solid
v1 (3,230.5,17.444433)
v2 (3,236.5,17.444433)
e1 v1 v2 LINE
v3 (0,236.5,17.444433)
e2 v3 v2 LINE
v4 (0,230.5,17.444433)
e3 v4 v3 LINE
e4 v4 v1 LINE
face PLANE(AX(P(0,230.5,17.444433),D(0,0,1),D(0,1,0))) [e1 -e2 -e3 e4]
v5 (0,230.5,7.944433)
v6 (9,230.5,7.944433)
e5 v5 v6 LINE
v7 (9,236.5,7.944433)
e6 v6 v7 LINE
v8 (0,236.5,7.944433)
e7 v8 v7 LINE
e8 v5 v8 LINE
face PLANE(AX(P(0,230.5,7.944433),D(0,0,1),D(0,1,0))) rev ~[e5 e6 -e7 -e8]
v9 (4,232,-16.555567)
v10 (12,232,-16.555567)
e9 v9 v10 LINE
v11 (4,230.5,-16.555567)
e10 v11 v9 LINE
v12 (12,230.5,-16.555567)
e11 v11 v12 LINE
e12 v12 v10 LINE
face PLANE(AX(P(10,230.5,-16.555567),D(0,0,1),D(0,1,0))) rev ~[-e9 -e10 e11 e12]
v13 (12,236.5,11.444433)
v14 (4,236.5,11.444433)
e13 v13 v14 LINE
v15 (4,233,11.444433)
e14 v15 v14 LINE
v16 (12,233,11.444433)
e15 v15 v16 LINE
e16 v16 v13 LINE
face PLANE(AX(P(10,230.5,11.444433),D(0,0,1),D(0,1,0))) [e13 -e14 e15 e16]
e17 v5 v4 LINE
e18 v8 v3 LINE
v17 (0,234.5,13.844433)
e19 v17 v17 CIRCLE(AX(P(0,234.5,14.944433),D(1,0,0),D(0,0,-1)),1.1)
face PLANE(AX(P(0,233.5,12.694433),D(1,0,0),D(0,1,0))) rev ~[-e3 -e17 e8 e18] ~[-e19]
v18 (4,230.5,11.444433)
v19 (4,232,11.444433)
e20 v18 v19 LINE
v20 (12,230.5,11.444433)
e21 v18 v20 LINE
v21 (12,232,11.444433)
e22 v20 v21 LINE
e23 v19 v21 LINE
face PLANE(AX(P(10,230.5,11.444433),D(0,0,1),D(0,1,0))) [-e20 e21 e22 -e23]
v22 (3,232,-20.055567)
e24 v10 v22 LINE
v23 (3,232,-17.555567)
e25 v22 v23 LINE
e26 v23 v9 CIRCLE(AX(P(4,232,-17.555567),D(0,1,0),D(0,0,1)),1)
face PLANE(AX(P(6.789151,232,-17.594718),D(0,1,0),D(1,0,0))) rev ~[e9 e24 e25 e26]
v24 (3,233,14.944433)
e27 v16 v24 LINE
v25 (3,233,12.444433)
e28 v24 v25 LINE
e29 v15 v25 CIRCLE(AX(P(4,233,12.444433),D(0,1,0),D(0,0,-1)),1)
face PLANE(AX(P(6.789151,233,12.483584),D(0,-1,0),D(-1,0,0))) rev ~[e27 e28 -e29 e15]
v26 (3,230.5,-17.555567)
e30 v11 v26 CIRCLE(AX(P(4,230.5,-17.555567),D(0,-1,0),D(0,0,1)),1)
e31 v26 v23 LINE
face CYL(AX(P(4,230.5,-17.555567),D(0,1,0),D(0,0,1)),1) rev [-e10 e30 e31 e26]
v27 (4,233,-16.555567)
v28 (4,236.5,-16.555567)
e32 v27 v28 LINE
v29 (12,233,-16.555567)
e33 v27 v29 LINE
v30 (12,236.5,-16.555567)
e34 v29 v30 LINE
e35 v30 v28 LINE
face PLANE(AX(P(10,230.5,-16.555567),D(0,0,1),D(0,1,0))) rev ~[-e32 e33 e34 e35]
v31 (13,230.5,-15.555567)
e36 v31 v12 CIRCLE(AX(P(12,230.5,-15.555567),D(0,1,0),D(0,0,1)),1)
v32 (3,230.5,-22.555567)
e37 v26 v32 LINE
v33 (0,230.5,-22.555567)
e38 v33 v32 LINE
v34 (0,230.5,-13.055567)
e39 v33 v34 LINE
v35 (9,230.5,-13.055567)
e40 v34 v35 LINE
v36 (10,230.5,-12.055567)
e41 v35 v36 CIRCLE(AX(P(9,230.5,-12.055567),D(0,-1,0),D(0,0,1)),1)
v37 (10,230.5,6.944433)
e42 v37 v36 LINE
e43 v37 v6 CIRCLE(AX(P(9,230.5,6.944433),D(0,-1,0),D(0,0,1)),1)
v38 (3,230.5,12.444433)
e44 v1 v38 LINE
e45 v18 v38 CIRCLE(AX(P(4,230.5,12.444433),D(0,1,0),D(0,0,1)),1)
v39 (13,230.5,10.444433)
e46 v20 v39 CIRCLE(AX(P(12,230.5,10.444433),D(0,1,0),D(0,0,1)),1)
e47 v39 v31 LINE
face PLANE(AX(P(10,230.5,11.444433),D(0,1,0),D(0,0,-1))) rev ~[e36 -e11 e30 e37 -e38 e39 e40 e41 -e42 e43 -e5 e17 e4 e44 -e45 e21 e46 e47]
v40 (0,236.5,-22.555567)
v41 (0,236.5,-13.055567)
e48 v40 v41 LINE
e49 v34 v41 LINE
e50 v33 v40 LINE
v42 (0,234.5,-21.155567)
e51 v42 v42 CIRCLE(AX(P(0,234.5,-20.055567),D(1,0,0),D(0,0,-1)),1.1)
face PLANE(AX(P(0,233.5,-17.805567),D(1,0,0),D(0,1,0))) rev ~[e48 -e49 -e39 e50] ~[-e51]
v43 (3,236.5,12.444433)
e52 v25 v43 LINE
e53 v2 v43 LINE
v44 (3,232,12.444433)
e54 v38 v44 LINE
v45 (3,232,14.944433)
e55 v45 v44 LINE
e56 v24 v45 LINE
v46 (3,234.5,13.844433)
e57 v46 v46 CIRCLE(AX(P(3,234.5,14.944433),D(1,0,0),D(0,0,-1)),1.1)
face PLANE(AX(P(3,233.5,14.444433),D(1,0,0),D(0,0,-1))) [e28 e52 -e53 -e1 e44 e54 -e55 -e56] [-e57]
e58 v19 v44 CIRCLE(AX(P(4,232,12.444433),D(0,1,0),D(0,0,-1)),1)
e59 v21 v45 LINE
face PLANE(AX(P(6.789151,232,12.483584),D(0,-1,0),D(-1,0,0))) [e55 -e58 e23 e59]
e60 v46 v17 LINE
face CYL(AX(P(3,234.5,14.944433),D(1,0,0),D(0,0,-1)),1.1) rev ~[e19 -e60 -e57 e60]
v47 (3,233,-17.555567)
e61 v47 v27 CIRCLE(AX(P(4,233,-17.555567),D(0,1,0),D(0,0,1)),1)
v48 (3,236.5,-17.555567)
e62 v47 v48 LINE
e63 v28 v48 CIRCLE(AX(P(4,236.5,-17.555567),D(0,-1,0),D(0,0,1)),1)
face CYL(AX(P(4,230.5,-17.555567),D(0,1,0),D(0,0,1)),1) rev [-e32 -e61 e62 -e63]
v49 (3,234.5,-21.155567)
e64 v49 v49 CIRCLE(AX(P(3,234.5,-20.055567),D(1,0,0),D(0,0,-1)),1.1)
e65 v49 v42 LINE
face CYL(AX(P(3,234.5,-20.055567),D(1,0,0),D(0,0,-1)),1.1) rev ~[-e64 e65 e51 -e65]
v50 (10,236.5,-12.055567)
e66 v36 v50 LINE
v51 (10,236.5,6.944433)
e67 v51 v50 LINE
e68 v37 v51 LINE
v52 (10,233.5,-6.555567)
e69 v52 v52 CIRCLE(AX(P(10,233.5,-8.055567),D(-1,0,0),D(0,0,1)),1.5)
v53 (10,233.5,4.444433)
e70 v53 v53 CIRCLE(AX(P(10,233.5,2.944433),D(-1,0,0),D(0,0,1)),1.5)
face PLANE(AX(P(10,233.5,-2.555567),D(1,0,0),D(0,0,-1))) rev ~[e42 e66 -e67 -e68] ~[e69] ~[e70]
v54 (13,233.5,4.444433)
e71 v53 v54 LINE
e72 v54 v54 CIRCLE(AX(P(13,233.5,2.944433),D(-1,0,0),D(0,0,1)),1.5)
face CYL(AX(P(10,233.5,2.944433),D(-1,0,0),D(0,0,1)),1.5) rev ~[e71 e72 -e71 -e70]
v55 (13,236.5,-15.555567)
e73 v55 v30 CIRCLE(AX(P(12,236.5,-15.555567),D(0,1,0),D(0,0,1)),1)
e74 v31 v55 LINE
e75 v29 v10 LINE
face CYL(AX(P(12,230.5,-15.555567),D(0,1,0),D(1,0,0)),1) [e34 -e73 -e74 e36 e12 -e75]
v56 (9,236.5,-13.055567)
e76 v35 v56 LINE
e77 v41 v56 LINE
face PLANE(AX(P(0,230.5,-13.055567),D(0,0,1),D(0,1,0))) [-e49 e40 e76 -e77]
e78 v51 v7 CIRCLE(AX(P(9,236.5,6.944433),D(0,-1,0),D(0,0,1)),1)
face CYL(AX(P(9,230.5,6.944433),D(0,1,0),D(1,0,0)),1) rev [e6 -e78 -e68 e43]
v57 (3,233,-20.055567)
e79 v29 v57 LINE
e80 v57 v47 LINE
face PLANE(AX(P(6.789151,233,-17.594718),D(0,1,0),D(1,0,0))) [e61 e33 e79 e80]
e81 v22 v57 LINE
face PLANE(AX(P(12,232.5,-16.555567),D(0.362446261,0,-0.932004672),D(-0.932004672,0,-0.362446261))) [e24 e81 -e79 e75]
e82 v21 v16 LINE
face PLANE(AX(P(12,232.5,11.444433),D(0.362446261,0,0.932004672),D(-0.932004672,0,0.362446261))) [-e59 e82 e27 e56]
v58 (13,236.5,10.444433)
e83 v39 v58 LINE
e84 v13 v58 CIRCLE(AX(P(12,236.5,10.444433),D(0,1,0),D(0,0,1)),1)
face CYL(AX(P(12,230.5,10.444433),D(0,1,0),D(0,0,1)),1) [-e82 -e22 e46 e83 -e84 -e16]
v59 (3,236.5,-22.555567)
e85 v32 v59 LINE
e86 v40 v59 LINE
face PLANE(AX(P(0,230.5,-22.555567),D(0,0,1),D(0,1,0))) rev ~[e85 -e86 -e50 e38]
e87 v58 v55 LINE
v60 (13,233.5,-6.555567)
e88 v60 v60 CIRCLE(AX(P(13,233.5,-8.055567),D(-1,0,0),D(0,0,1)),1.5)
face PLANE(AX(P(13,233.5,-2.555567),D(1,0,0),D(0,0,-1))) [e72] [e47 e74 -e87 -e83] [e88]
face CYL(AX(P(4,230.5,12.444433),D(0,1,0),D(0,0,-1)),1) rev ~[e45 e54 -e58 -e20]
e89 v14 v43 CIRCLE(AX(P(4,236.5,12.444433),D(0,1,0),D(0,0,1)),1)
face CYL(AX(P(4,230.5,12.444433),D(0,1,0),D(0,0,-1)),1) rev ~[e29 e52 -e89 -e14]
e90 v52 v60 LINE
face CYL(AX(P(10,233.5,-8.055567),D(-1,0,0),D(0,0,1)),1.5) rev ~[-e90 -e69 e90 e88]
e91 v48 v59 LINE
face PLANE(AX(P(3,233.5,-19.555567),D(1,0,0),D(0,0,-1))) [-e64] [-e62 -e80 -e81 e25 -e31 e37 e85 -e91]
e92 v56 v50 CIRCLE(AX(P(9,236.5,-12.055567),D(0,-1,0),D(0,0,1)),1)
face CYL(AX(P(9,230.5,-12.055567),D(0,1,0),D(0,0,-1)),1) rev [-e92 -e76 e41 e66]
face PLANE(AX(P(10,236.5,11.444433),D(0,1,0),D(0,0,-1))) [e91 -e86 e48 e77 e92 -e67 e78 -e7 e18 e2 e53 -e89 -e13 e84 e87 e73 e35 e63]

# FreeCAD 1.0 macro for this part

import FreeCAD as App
import Part
import Sketcher
from FreeCAD import Vector
Q = App.Units.Quantity


def edges_at(feature, points):
    """Names of the edges that pass closest to the given points."""
    edges = feature.Shape.Edges
    near = lambda p: min(range(len(edges)), key=lambda i: edges[i].distToShape(Part.Vertex(*p))[0])
    return sorted({f"Edge{near(p) + 1}" for p in points})

doc = App.newDocument("Part")
body = doc.addObject("PartDesign::Body", "Body")

# Sketch on YZ plane
sketch1 = body.newObject("Sketcher::SketchObject", "Sketch")
sketch1.AttachmentSupport = (doc.getObject("YZ_Plane"), [""])
sketch1.MapMode = "FlatFace"
sketch1.addGeometry([
    Part.LineSegment(Vector(230.5, -13.055567, 0), Vector(230.5, -22.555567, 0)),
    Part.LineSegment(Vector(230.5, -22.555567, 0), Vector(236.5, -22.555567, 0)),
    Part.LineSegment(Vector(236.5, -22.555567, 0), Vector(236.5, -13.055567, 0)),
    Part.LineSegment(Vector(236.5, -13.055567, 0), Vector(230.5, -13.055567, 0)),
], False)
sketch1.addConstraint([
    Sketcher.Constraint("Coincident", 0, 2, 1, 1),
    Sketcher.Constraint("Coincident", 1, 2, 2, 1),
    Sketcher.Constraint("Coincident", 2, 2, 3, 1),
    Sketcher.Constraint("Coincident", 3, 2, 0, 1),
    Sketcher.Constraint("Vertical", 0),
    Sketcher.Constraint("Horizontal", 1),
    Sketcher.Constraint("Vertical", 2),
    Sketcher.Constraint("Horizontal", 3),
    Sketcher.Constraint("DistanceX", 1, 1, 1, 2, Q("6 mm")),
    Sketcher.Constraint("DistanceY", 0, 2, 0, 1, Q("9.5 mm")),
    Sketcher.Constraint("DistanceX", -1, 1, 0, 2, Q("230.5 mm")),
    Sketcher.Constraint("DistanceY", 0, 2, -1, 1, Q("22.555567 mm")),
])
pad1 = body.newObject("PartDesign::Pad", "Pad")
pad1.Profile = sketch1
pad1.Length = 10
body2 = doc.addObject("PartDesign::Body", "Body001")

# Sketch on YZ plane
sketch2 = body2.newObject("Sketcher::SketchObject", "Sketch001")
sketch2.AttachmentSupport = (doc.getObject("YZ_Plane001"), [""])
sketch2.MapMode = "FlatFace"
sketch2.addGeometry([
    Part.LineSegment(Vector(230.5, 17.444433, 0), Vector(230.5, 7.944433, 0)),
    Part.LineSegment(Vector(230.5, 7.944433, 0), Vector(236.5, 7.944433, 0)),
    Part.LineSegment(Vector(236.5, 7.944433, 0), Vector(236.5, 17.444433, 0)),
    Part.LineSegment(Vector(236.5, 17.444433, 0), Vector(230.5, 17.444433, 0)),
], False)
sketch2.addConstraint([
    Sketcher.Constraint("Coincident", 0, 2, 1, 1),
    Sketcher.Constraint("Coincident", 1, 2, 2, 1),
    Sketcher.Constraint("Coincident", 2, 2, 3, 1),
    Sketcher.Constraint("Coincident", 3, 2, 0, 1),
    Sketcher.Constraint("Vertical", 0),
    Sketcher.Constraint("Horizontal", 1),
    Sketcher.Constraint("Vertical", 2),
    Sketcher.Constraint("Horizontal", 3),
    Sketcher.Constraint("DistanceX", 1, 1, 1, 2, Q("6 mm")),
    Sketcher.Constraint("DistanceY", 0, 2, 0, 1, Q("9.5 mm")),
    Sketcher.Constraint("DistanceX", -1, 1, 0, 2, Q("230.5 mm")),
    Sketcher.Constraint("DistanceY", -1, 1, 0, 2, Q("7.944433 mm")),
])
pad2 = body2.newObject("PartDesign::Pad", "Pad001")
pad2.Profile = sketch2
pad2.Length = 10
body3 = doc.addObject("PartDesign::Body", "Body002")
body3.AllowCompound = True

# Sketch on YZ plane
sketch3 = body3.newObject("Sketcher::SketchObject", "Sketch002")
sketch3.AttachmentSupport = (doc.getObject("YZ_Plane002"), [""])
sketch3.MapMode = "FlatFace"
sketch3.AttachmentOffset = App.Placement(Vector(0, 0, 10), App.Rotation())
sketch3.addGeometry([
    Part.LineSegment(Vector(236.5, 17.444433, 0), Vector(230.5, 17.444433, 0)),  # 0
    Part.LineSegment(Vector(230.5, 17.444433, 0), Vector(230.5, 11.444433, 0)),  # 1
    Part.LineSegment(Vector(230.5, 11.444433, 0), Vector(236.5, 11.444433, 0)),  # 2
    Part.LineSegment(Vector(236.5, 11.444433, 0), Vector(236.5, 17.444433, 0)),  # 3
    Part.LineSegment(Vector(236.5, -16.555567, 0), Vector(230.5, -16.555567, 0)),  # 4
    Part.LineSegment(Vector(230.5, -16.555567, 0), Vector(230.5, -22.555567, 0)),  # 5
    Part.LineSegment(Vector(230.5, -22.555567, 0), Vector(236.5, -22.555567, 0)),  # 6
    Part.LineSegment(Vector(236.5, -22.555567, 0), Vector(236.5, -16.555567, 0)),  # 7
], False)
sketch3.addConstraint([
    Sketcher.Constraint("Coincident", 0, 2, 1, 1),
    Sketcher.Constraint("Coincident", 1, 2, 2, 1),
    Sketcher.Constraint("Coincident", 2, 2, 3, 1),
    Sketcher.Constraint("Coincident", 3, 2, 0, 1),
    Sketcher.Constraint("Coincident", 4, 2, 5, 1),
    Sketcher.Constraint("Coincident", 5, 2, 6, 1),
    Sketcher.Constraint("Coincident", 6, 2, 7, 1),
    Sketcher.Constraint("Coincident", 7, 2, 4, 1),
    Sketcher.Constraint("Horizontal", 0),
    Sketcher.Constraint("Vertical", 1),
    Sketcher.Constraint("Horizontal", 2),
    Sketcher.Constraint("Vertical", 3),
    Sketcher.Constraint("Horizontal", 4),
    Sketcher.Constraint("Vertical", 5),
    Sketcher.Constraint("Horizontal", 6),
    Sketcher.Constraint("Vertical", 7),
    Sketcher.Constraint("Vertical", 1, 2, 4, 2),
    Sketcher.Constraint("Vertical", 3, 2, 6, 2),
    Sketcher.Constraint("Equal", 6, 1),
    Sketcher.Constraint("Equal", 3, 5),
    Sketcher.Constraint("DistanceX", 0, 2, 0, 1, Q("6 mm")),
    Sketcher.Constraint("DistanceY", 4, 2, 1, 2, Q("28 mm")),
    Sketcher.Constraint("DistanceX", -1, 1, 0, 2, Q("230.5 mm")),
    Sketcher.Constraint("DistanceY", -1, 1, 0, 2, Q("17.444433 mm")),
])
pad3 = body3.newObject("PartDesign::Pad", "Pad002")
pad3.Profile = sketch3
pad3.Length = 7
pad3.Reversed = True
doc.recompute()

body4 = doc.addObject("PartDesign::Body", "Body003")
body4.BaseFeature = body3
boolean = body.newObject("PartDesign::Boolean", "Boolean")
boolean.Type = "Cut"
boolean.addObjects([body4])
doc.recompute()

boolean2 = body2.newObject("PartDesign::Boolean", "Boolean001")
boolean2.Type = "Cut"
boolean2.addObjects([body3])
body.AllowCompound = True
doc.recompute()

boolean3 = body.newObject("PartDesign::Boolean", "Boolean002")
boolean3.Type = "Fuse"
boolean3.addObjects([body2])

# Sketch on YZ plane
sketch4 = body.newObject("Sketcher::SketchObject", "Sketch003")
sketch4.AttachmentSupport = (doc.getObject("YZ_Plane"), [""])
sketch4.MapMode = "FlatFace"
sketch4.AttachmentOffset = App.Placement(Vector(0, 0, 10), App.Rotation())
sketch4.addGeometry([
    Part.LineSegment(Vector(236.5, 11.444433, 0), Vector(230.5, 11.444433, 0)),
    Part.LineSegment(Vector(230.5, 11.444433, 0), Vector(230.5, -16.555567, 0)),
    Part.LineSegment(Vector(230.5, -16.555567, 0), Vector(236.5, -16.555567, 0)),
    Part.LineSegment(Vector(236.5, -16.555567, 0), Vector(236.5, 11.444433, 0)),
], False)
sketch4.addConstraint([
    Sketcher.Constraint("Coincident", 0, 2, 1, 1),
    Sketcher.Constraint("Coincident", 1, 2, 2, 1),
    Sketcher.Constraint("Coincident", 2, 2, 3, 1),
    Sketcher.Constraint("Coincident", 3, 2, 0, 1),
    Sketcher.Constraint("Horizontal", 0),
    Sketcher.Constraint("Vertical", 1),
    Sketcher.Constraint("Horizontal", 2),
    Sketcher.Constraint("Vertical", 3),
    Sketcher.Constraint("DistanceX", 0, 2, 0, 1, Q("6 mm")),
    Sketcher.Constraint("DistanceY", 1, 2, 1, 1, Q("28 mm")),
    Sketcher.Constraint("DistanceX", -1, 1, 0, 2, Q("230.5 mm")),
    Sketcher.Constraint("DistanceY", -1, 1, 0, 2, Q("11.444433 mm")),
])
pad4 = body.newObject("PartDesign::Pad", "Pad003")
pad4.Profile = sketch4
pad4.Length = 3

# Sketch on YZ plane
sketch5 = body.newObject("Sketcher::SketchObject", "Sketch004")
sketch5.AttachmentSupport = (doc.getObject("YZ_Plane"), [""])
sketch5.MapMode = "FlatFace"
sketch5.AttachmentOffset = App.Placement(Vector(0, 0, 10), App.Rotation())
sketch5.addGeometry([
    Part.Circle(Vector(233.5, -8.055567, 0), Vector(0, 0, 1), 1.5),
    Part.Circle(Vector(233.5, 2.944433, 0), Vector(0, 0, 1), 1.5),
], False)
sketch5.addConstraint([
    Sketcher.Constraint("Equal", 0, 1),
    Sketcher.Constraint("Vertical", 0, 3, 1, 3),
    Sketcher.Constraint("Diameter", 0, Q("3 mm")),
    Sketcher.Constraint("DistanceY", 0, 3, 1, 3, Q("11 mm")),
    Sketcher.Constraint("DistanceX", -1, 1, 0, 3, Q("233.5 mm")),
    Sketcher.Constraint("DistanceY", 0, 3, -1, 1, Q("8.055567 mm")),
])
pocket1 = body.newObject("PartDesign::Pocket", "Pocket")
pocket1.Profile = sketch5
pocket1.Length = 3
pocket1.Reversed = True
doc.recompute()

fillet = body.newObject("PartDesign::Fillet", "Fillet")
fillet.Base = (pocket1, edges_at(pocket1, [
    (10, 233.5, -13.056),
    (3, 233.5, -16.556),
    (13, 233.5, 11.444),
    (13, 233.5, -16.556),
    (10, 233.5, 7.944),
    (3, 233.5, 11.444),
]))
fillet.Radius = 1

# Sketch on XZ plane
sketch6 = body.newObject("Sketcher::SketchObject", "Sketch005")
sketch6.AttachmentSupport = (doc.getObject("XZ_Plane"), [""])
sketch6.MapMode = "FlatFace"
sketch6.AttachmentOffset = App.Placement(Vector(0, 0, -232.5), App.Rotation())
sketch6.addGeometry([
    Part.LineSegment(Vector(3, -20.055567, 0), Vector(12, -16.555567, 0)),  # 0
    Part.LineSegment(Vector(12, -16.555567, 0), Vector(3, -16.555567, 0)),  # 1
    Part.LineSegment(Vector(3, -16.555567, 0), Vector(3, -20.055567, 0)),  # 2
    Part.LineSegment(Vector(12, 11.444433, 0), Vector(3, 14.944433, 0)),  # 3
    Part.LineSegment(Vector(3, 14.944433, 0), Vector(3, 11.444433, 0)),  # 4
    Part.LineSegment(Vector(3, 11.444433, 0), Vector(12, 11.444433, 0)),  # 5
], False)
sketch6.addConstraint([
    Sketcher.Constraint("Coincident", 0, 2, 1, 1),
    Sketcher.Constraint("Coincident", 1, 2, 2, 1),
    Sketcher.Constraint("Coincident", 2, 2, 0, 1),
    Sketcher.Constraint("Coincident", 3, 2, 4, 1),
    Sketcher.Constraint("Coincident", 4, 2, 5, 1),
    Sketcher.Constraint("Coincident", 5, 2, 3, 1),
    Sketcher.Constraint("Horizontal", 1),
    Sketcher.Constraint("Vertical", 2),
    Sketcher.Constraint("Vertical", 4),
    Sketcher.Constraint("Horizontal", 5),
    Sketcher.Constraint("Vertical", 2, 2, 3, 2),
    Sketcher.Constraint("Vertical", 0, 2, 5, 2),
    Sketcher.Constraint("Equal", 2, 4),
    Sketcher.Constraint("DistanceX", 1, 2, 1, 1, Q("9 mm")),
    Sketcher.Constraint("DistanceY", 2, 2, 2, 1, Q("3.5 mm")),
    Sketcher.Constraint("DistanceX", -1, 1, 0, 2, Q("12 mm")),
    Sketcher.Constraint("DistanceY", 2, 2, 3, 2, Q("35 mm")),
    Sketcher.Constraint("DistanceY", 0, 2, -1, 1, Q("16.555567 mm")),
])
pad5 = body.newObject("PartDesign::Pad", "Pad004")
pad5.Profile = sketch6
pad5.Length = 1
pad5.Midplane = True

# Sketch on YZ plane
sketch7 = body.newObject("Sketcher::SketchObject", "Sketch006")
sketch7.AttachmentSupport = (doc.getObject("YZ_Plane"), [""])
sketch7.MapMode = "FlatFace"
sketch7.AttachmentOffset = App.Placement(Vector(0, 0, 3), App.Rotation())
sketch7.addGeometry([
    Part.Circle(Vector(234.5, -20.055567, 0), Vector(0, 0, 1), 1.1),
    Part.Circle(Vector(234.5, 14.944433, 0), Vector(0, 0, 1), 1.1),
], False)
sketch7.addConstraint([
    Sketcher.Constraint("Equal", 0, 1),
    Sketcher.Constraint("Vertical", 0, 3, 1, 3),
    Sketcher.Constraint("Diameter", 0, Q("2.2 mm")),
    Sketcher.Constraint("DistanceY", 0, 3, 1, 3, Q("35 mm")),
    Sketcher.Constraint("DistanceX", -1, 1, 0, 3, Q("234.5 mm")),
    Sketcher.Constraint("DistanceY", 0, 3, -1, 1, Q("20.055567 mm")),
])
pocket2 = body.newObject("PartDesign::Pocket", "Pocket001")
pocket2.Profile = sketch7
pocket2.Length = 3

doc.recompute()
